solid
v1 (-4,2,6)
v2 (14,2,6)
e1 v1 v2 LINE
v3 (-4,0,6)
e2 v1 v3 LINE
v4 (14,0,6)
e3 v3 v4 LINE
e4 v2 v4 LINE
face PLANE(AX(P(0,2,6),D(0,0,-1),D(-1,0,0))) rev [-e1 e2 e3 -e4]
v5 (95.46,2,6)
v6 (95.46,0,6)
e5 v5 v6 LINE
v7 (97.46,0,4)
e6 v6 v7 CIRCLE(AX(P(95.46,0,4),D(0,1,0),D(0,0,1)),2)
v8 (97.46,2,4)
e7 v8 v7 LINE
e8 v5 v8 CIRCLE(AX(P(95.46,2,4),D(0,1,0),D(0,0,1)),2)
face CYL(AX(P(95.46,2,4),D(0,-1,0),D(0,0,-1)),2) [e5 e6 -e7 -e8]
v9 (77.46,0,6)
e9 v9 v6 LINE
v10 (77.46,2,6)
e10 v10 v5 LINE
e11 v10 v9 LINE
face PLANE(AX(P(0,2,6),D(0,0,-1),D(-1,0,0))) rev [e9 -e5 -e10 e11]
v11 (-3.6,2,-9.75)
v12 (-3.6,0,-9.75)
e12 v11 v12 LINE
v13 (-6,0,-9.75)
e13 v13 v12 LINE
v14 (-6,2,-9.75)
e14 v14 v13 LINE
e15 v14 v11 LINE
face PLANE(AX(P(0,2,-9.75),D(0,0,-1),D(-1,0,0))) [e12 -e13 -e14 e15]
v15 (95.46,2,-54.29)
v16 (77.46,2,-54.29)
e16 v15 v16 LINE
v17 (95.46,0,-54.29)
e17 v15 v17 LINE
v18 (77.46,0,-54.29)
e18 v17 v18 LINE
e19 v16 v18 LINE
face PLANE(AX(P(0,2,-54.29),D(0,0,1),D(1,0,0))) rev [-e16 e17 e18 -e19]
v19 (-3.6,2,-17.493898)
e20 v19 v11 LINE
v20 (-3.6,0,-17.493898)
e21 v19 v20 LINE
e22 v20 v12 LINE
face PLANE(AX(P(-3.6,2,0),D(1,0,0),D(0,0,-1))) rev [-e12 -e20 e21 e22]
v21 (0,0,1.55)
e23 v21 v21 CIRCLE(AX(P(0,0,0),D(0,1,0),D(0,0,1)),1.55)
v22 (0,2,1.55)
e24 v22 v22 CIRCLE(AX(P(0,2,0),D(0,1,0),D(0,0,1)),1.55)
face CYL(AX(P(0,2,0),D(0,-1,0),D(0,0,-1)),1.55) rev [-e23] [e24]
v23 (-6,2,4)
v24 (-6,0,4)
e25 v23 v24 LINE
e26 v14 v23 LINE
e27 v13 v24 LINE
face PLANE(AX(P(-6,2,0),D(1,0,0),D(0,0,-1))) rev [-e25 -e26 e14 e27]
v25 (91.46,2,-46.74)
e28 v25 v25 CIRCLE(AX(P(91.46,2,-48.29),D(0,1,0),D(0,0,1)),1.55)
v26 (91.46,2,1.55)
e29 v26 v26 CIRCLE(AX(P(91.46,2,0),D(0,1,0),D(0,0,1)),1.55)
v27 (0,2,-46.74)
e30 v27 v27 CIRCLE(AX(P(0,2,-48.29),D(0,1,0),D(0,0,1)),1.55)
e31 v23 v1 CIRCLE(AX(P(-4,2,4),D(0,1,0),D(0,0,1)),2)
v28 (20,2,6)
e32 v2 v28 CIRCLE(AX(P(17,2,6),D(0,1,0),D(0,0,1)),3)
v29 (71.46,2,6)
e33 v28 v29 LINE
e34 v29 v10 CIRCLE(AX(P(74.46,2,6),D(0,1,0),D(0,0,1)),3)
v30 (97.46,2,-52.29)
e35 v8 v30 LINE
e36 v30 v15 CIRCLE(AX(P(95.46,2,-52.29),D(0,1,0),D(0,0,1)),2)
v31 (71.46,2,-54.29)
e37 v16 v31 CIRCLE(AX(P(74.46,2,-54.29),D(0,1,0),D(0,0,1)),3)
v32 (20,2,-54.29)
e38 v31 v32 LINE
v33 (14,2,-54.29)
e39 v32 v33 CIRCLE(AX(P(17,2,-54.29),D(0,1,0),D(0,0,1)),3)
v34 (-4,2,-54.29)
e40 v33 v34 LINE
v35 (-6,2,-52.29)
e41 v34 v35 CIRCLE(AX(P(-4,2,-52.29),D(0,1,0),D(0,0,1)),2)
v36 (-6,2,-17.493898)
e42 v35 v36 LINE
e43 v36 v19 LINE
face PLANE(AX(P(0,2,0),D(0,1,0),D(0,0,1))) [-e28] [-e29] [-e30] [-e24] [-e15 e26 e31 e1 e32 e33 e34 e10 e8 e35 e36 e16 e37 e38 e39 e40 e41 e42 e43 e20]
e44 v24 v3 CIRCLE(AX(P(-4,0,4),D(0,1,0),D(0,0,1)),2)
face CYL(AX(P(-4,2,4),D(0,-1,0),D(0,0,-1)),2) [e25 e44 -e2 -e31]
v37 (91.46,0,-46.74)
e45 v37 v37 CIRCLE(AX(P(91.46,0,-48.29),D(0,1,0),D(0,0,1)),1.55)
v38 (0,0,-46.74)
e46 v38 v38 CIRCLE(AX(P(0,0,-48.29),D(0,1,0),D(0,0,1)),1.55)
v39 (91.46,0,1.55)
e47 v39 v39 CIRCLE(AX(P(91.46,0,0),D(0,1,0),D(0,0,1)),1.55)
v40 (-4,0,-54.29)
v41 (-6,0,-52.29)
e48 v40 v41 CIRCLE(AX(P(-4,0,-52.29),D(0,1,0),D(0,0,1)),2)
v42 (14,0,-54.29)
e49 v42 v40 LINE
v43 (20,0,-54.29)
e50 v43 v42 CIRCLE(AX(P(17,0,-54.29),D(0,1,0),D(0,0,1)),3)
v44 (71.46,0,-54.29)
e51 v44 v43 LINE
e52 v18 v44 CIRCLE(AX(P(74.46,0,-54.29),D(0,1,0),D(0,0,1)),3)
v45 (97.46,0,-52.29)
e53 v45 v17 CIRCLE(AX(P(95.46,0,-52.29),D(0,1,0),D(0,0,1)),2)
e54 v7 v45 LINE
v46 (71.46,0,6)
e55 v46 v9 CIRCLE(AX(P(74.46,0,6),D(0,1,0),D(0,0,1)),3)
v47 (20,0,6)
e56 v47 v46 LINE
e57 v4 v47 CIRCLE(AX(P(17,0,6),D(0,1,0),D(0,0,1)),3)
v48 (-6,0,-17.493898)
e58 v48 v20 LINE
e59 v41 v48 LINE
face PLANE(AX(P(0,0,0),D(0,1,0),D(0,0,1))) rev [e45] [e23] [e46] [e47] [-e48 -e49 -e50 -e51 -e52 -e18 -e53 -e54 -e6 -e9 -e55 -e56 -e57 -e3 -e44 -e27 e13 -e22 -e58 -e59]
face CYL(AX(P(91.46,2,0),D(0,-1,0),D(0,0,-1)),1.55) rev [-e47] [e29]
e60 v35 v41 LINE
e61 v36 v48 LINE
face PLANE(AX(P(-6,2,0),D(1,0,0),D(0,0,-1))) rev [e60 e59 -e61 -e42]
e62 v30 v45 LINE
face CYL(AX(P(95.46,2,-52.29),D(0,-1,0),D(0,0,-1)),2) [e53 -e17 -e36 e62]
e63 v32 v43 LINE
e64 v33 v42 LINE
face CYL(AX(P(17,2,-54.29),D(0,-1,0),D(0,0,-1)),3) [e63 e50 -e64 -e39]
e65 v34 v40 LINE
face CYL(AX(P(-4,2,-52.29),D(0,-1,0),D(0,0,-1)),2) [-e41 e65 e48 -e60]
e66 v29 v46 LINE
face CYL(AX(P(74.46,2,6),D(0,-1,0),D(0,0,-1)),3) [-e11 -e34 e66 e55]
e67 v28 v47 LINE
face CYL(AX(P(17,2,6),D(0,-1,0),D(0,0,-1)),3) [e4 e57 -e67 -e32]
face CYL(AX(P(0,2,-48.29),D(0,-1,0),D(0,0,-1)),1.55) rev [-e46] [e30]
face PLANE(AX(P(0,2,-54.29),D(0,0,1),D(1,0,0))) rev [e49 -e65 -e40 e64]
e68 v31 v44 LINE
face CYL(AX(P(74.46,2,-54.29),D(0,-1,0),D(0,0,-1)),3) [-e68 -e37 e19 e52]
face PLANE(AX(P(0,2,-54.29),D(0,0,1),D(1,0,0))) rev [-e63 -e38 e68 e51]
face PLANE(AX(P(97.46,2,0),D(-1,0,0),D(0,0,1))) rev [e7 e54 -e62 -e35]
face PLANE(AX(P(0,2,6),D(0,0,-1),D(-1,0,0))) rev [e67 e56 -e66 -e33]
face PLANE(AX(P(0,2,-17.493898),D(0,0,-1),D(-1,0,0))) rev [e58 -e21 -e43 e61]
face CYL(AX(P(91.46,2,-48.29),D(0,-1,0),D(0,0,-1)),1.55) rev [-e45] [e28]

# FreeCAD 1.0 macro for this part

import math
import FreeCAD as App
import Part
import Sketcher

V = App.Vector
Q = App.Units.Quantity

doc = App.newDocument("Part")
body = doc.addObject("PartDesign::Body", "Body")

sketch1 = body.newObject("Sketcher::SketchObject", "Sketch")
sketch1.AttachmentSupport = (doc.getObject("XZ_Plane"), [""])
sketch1.MapMode = "FlatFace"
sketch1.addGeometry(Part.LineSegment(V(97.5, 4, 0), V(97.5, -52.3, 0)), False)
sketch1.addGeometry(Part.ArcOfCircle(Part.Circle(V(95.5, -52.3, 0), V(0, 0, 1), 2), math.radians(-90), math.radians(0)), False)
sketch1.addGeometry(Part.LineSegment(V(95.5, -54.3, 0), V(77.5, -54.3, 0)), False)
sketch1.addGeometry(Part.ArcOfCircle(Part.Circle(V(74.5, -54.3, 0), V(0, 0, 1), 3), math.radians(180), math.radians(360)), False)
sketch1.addGeometry(Part.LineSegment(V(71.5, -54.3, 0), V(20, -54.3, 0)), False)
sketch1.addGeometry(Part.ArcOfCircle(Part.Circle(V(17, -54.3, 0), V(0, 0, 1), 3), math.radians(180), math.radians(360)), False)
sketch1.addGeometry(Part.LineSegment(V(14, -54.3, 0), V(-4, -54.3, 0)), False)
sketch1.addGeometry(Part.ArcOfCircle(Part.Circle(V(-4, -52.3, 0), V(0, 0, 1), 2), math.radians(-180), math.radians(-90)), False)
sketch1.addGeometry(Part.LineSegment(V(-6, -52.3, 0), V(-6, -17.5, 0)), False)
sketch1.addGeometry(Part.LineSegment(V(-6, -17.5, 0), V(-3.6, -17.5, 0)), False)
sketch1.addGeometry(Part.LineSegment(V(-3.6, -17.5, 0), V(-3.6, -9.8, 0)), False)
sketch1.addGeometry(Part.LineSegment(V(-3.6, -9.8, 0), V(-6, -9.8, 0)), False)
sketch1.addGeometry(Part.LineSegment(V(-6, -9.8, 0), V(-6, 4, 0)), False)
sketch1.addGeometry(Part.ArcOfCircle(Part.Circle(V(-4, 4, 0), V(0, 0, 1), 2), math.radians(90), math.radians(180)), False)
sketch1.addGeometry(Part.LineSegment(V(-4, 6, 0), V(14, 6, 0)), False)
sketch1.addGeometry(Part.ArcOfCircle(Part.Circle(V(17, 6, 0), V(0, 0, 1), 3), math.radians(0), math.radians(180)), False)
sketch1.addGeometry(Part.LineSegment(V(20, 6, 0), V(71.5, 6, 0)), False)
sketch1.addGeometry(Part.ArcOfCircle(Part.Circle(V(74.5, 6, 0), V(0, 0, 1), 3), math.radians(0), math.radians(180)), False)
sketch1.addGeometry(Part.LineSegment(V(77.5, 6, 0), V(95.5, 6, 0)), False)
sketch1.addGeometry(Part.ArcOfCircle(Part.Circle(V(95.5, 4, 0), V(0, 0, 1), 2), math.radians(0), math.radians(90)), False)
sketch1.addGeometry(Part.Circle(V(0, 0, 0), V(0, 0, 1), 1.6), False)
sketch1.addGeometry(Part.Circle(V(91.5, 0, 0), V(0, 0, 1), 1.6), False)
sketch1.addGeometry(Part.Circle(V(0, -48.3, 0), V(0, 0, 1), 1.6), False)
sketch1.addGeometry(Part.Circle(V(91.5, -48.3, 0), V(0, 0, 1), 1.6), False)
sketch1.addConstraint(Sketcher.Constraint("Tangent", 0, 2, 1, 2))
sketch1.addConstraint(Sketcher.Constraint("Tangent", 1, 1, 2, 1))
sketch1.addConstraint(Sketcher.Constraint("Coincident", 2, 2, 3, 2))
sketch1.addConstraint(Sketcher.Constraint("Coincident", 3, 1, 4, 1))
sketch1.addConstraint(Sketcher.Constraint("Coincident", 4, 2, 5, 2))
sketch1.addConstraint(Sketcher.Constraint("Coincident", 5, 1, 6, 1))
sketch1.addConstraint(Sketcher.Constraint("Tangent", 6, 2, 7, 2))
sketch1.addConstraint(Sketcher.Constraint("Tangent", 7, 1, 8, 1))
sketch1.addConstraint(Sketcher.Constraint("Coincident", 8, 2, 9, 1))
sketch1.addConstraint(Sketcher.Constraint("Coincident", 9, 2, 10, 1))
sketch1.addConstraint(Sketcher.Constraint("Coincident", 10, 2, 11, 1))
sketch1.addConstraint(Sketcher.Constraint("Coincident", 11, 2, 12, 1))
sketch1.addConstraint(Sketcher.Constraint("Tangent", 12, 2, 13, 2))
sketch1.addConstraint(Sketcher.Constraint("Tangent", 13, 1, 14, 1))
sketch1.addConstraint(Sketcher.Constraint("Coincident", 14, 2, 15, 2))
sketch1.addConstraint(Sketcher.Constraint("Coincident", 15, 1, 16, 1))
sketch1.addConstraint(Sketcher.Constraint("Coincident", 16, 2, 17, 2))
sketch1.addConstraint(Sketcher.Constraint("Coincident", 17, 1, 18, 1))
sketch1.addConstraint(Sketcher.Constraint("Tangent", 18, 2, 19, 2))
sketch1.addConstraint(Sketcher.Constraint("Tangent", 19, 1, 0, 1))
sketch1.addConstraint(Sketcher.Constraint("Vertical", 0))
sketch1.addConstraint(Sketcher.Constraint("Horizontal", 2))
sketch1.addConstraint(Sketcher.Constraint("Horizontal", 4))
sketch1.addConstraint(Sketcher.Constraint("Horizontal", 6))
sketch1.addConstraint(Sketcher.Constraint("Vertical", 8))
sketch1.addConstraint(Sketcher.Constraint("Horizontal", 9))
sketch1.addConstraint(Sketcher.Constraint("Vertical", 10))
sketch1.addConstraint(Sketcher.Constraint("Horizontal", 11))
sketch1.addConstraint(Sketcher.Constraint("Vertical", 12))
sketch1.addConstraint(Sketcher.Constraint("Horizontal", 14))
sketch1.addConstraint(Sketcher.Constraint("Horizontal", 16))
sketch1.addConstraint(Sketcher.Constraint("Horizontal", 18))
sketch1.addConstraint(Sketcher.Constraint("Coincident", 20, 3, -1, 1))
sketch1.addConstraint(Sketcher.Constraint("Equal", 3, 5))
sketch1.addConstraint(Sketcher.Constraint("Equal", 1, 7))
sketch1.addConstraint(Sketcher.Constraint("Equal", 7, 13))
sketch1.addConstraint(Sketcher.Constraint("Equal", 5, 15))
sketch1.addConstraint(Sketcher.Constraint("Equal", 15, 17))
sketch1.addConstraint(Sketcher.Constraint("Equal", 13, 19))
sketch1.addConstraint(Sketcher.Constraint("Equal", 20, 21))
sketch1.addConstraint(Sketcher.Constraint("Equal", 21, 22))
sketch1.addConstraint(Sketcher.Constraint("Equal", 22, 23))
sketch1.addConstraint(Sketcher.Constraint("PointOnObject", 21, 3, -1))
sketch1.addConstraint(Sketcher.Constraint("PointOnObject", 22, 3, -2))
sketch1.addConstraint(Sketcher.Constraint("Horizontal", 3, 3, 5, 3))
sketch1.addConstraint(Sketcher.Constraint("Horizontal", 1, 3, 7, 3))
sketch1.addConstraint(Sketcher.Constraint("Horizontal", 15, 3, 17, 3))
sketch1.addConstraint(Sketcher.Constraint("Horizontal", 13, 3, 19, 3))
sketch1.addConstraint(Sketcher.Constraint("Horizontal", 22, 3, 23, 3))
sketch1.addConstraint(Sketcher.Constraint("Horizontal", 5, 3, 1, 1))
sketch1.addConstraint(Sketcher.Constraint("Horizontal", 2, 2, 3, 1))
sketch1.addConstraint(Sketcher.Constraint("Horizontal", 17, 3, 13, 1))
sketch1.addConstraint(Sketcher.Constraint("Horizontal", 14, 2, 15, 1))
sketch1.addConstraint(Sketcher.Constraint("Vertical", 7, 3, 13, 3))
sketch1.addConstraint(Sketcher.Constraint("Vertical", 5, 3, 15, 3))
sketch1.addConstraint(Sketcher.Constraint("Vertical", 3, 3, 17, 3))
sketch1.addConstraint(Sketcher.Constraint("Vertical", 21, 3, 23, 3))
sketch1.addConstraint(Sketcher.Constraint("Equal", 2, 6))
sketch1.addConstraint(Sketcher.Constraint("Radius", 1, Q("2 mm")))
sketch1.addConstraint(Sketcher.Constraint("Radius", 3, Q("3 mm")))
sketch1.addConstraint(Sketcher.Constraint("Diameter", 20, Q("3.1 mm")))
sketch1.addConstraint(Sketcher.Constraint("DistanceX", 2, 2, 2, 1, Q("18 mm")))
sketch1.addConstraint(Sketcher.Constraint("DistanceX", 9, 1, 9, 2, Q("2.4 mm")))
sketch1.addConstraint(Sketcher.Constraint("DistanceX", -1, 1, 5, 3, Q("17 mm")))
sketch1.addConstraint(Sketcher.Constraint("DistanceY", -1, 1, 13, 3, Q("4 mm")))
sketch1.addConstraint(Sketcher.Constraint("DistanceX", 21, 3, 19, 3, Q("4 mm")))
sketch1.addConstraint(Sketcher.Constraint("DistanceY", 7, 3, 22, 3, Q("4 mm")))
sketch1.addConstraint(Sketcher.Constraint("DistanceX", 4, 2, 4, 1, Q("51.46 mm")))
sketch1.addConstraint(Sketcher.Constraint("DistanceY", 0, 2, 0, 1, Q("56.29 mm")))
sketch1.addConstraint(Sketcher.Constraint("DistanceY", 12, 1, 12, 2, Q("13.75 mm")))
sketch1.addConstraint(Sketcher.Constraint("DistanceY", 8, 1, 8, 2, Q("34.796102 mm")))
pad1 = body.newObject("PartDesign::Pad", "Pad")
pad1.Profile = sketch1
pad1.Length = 2
pad1.Reversed = True

doc.recompute()
